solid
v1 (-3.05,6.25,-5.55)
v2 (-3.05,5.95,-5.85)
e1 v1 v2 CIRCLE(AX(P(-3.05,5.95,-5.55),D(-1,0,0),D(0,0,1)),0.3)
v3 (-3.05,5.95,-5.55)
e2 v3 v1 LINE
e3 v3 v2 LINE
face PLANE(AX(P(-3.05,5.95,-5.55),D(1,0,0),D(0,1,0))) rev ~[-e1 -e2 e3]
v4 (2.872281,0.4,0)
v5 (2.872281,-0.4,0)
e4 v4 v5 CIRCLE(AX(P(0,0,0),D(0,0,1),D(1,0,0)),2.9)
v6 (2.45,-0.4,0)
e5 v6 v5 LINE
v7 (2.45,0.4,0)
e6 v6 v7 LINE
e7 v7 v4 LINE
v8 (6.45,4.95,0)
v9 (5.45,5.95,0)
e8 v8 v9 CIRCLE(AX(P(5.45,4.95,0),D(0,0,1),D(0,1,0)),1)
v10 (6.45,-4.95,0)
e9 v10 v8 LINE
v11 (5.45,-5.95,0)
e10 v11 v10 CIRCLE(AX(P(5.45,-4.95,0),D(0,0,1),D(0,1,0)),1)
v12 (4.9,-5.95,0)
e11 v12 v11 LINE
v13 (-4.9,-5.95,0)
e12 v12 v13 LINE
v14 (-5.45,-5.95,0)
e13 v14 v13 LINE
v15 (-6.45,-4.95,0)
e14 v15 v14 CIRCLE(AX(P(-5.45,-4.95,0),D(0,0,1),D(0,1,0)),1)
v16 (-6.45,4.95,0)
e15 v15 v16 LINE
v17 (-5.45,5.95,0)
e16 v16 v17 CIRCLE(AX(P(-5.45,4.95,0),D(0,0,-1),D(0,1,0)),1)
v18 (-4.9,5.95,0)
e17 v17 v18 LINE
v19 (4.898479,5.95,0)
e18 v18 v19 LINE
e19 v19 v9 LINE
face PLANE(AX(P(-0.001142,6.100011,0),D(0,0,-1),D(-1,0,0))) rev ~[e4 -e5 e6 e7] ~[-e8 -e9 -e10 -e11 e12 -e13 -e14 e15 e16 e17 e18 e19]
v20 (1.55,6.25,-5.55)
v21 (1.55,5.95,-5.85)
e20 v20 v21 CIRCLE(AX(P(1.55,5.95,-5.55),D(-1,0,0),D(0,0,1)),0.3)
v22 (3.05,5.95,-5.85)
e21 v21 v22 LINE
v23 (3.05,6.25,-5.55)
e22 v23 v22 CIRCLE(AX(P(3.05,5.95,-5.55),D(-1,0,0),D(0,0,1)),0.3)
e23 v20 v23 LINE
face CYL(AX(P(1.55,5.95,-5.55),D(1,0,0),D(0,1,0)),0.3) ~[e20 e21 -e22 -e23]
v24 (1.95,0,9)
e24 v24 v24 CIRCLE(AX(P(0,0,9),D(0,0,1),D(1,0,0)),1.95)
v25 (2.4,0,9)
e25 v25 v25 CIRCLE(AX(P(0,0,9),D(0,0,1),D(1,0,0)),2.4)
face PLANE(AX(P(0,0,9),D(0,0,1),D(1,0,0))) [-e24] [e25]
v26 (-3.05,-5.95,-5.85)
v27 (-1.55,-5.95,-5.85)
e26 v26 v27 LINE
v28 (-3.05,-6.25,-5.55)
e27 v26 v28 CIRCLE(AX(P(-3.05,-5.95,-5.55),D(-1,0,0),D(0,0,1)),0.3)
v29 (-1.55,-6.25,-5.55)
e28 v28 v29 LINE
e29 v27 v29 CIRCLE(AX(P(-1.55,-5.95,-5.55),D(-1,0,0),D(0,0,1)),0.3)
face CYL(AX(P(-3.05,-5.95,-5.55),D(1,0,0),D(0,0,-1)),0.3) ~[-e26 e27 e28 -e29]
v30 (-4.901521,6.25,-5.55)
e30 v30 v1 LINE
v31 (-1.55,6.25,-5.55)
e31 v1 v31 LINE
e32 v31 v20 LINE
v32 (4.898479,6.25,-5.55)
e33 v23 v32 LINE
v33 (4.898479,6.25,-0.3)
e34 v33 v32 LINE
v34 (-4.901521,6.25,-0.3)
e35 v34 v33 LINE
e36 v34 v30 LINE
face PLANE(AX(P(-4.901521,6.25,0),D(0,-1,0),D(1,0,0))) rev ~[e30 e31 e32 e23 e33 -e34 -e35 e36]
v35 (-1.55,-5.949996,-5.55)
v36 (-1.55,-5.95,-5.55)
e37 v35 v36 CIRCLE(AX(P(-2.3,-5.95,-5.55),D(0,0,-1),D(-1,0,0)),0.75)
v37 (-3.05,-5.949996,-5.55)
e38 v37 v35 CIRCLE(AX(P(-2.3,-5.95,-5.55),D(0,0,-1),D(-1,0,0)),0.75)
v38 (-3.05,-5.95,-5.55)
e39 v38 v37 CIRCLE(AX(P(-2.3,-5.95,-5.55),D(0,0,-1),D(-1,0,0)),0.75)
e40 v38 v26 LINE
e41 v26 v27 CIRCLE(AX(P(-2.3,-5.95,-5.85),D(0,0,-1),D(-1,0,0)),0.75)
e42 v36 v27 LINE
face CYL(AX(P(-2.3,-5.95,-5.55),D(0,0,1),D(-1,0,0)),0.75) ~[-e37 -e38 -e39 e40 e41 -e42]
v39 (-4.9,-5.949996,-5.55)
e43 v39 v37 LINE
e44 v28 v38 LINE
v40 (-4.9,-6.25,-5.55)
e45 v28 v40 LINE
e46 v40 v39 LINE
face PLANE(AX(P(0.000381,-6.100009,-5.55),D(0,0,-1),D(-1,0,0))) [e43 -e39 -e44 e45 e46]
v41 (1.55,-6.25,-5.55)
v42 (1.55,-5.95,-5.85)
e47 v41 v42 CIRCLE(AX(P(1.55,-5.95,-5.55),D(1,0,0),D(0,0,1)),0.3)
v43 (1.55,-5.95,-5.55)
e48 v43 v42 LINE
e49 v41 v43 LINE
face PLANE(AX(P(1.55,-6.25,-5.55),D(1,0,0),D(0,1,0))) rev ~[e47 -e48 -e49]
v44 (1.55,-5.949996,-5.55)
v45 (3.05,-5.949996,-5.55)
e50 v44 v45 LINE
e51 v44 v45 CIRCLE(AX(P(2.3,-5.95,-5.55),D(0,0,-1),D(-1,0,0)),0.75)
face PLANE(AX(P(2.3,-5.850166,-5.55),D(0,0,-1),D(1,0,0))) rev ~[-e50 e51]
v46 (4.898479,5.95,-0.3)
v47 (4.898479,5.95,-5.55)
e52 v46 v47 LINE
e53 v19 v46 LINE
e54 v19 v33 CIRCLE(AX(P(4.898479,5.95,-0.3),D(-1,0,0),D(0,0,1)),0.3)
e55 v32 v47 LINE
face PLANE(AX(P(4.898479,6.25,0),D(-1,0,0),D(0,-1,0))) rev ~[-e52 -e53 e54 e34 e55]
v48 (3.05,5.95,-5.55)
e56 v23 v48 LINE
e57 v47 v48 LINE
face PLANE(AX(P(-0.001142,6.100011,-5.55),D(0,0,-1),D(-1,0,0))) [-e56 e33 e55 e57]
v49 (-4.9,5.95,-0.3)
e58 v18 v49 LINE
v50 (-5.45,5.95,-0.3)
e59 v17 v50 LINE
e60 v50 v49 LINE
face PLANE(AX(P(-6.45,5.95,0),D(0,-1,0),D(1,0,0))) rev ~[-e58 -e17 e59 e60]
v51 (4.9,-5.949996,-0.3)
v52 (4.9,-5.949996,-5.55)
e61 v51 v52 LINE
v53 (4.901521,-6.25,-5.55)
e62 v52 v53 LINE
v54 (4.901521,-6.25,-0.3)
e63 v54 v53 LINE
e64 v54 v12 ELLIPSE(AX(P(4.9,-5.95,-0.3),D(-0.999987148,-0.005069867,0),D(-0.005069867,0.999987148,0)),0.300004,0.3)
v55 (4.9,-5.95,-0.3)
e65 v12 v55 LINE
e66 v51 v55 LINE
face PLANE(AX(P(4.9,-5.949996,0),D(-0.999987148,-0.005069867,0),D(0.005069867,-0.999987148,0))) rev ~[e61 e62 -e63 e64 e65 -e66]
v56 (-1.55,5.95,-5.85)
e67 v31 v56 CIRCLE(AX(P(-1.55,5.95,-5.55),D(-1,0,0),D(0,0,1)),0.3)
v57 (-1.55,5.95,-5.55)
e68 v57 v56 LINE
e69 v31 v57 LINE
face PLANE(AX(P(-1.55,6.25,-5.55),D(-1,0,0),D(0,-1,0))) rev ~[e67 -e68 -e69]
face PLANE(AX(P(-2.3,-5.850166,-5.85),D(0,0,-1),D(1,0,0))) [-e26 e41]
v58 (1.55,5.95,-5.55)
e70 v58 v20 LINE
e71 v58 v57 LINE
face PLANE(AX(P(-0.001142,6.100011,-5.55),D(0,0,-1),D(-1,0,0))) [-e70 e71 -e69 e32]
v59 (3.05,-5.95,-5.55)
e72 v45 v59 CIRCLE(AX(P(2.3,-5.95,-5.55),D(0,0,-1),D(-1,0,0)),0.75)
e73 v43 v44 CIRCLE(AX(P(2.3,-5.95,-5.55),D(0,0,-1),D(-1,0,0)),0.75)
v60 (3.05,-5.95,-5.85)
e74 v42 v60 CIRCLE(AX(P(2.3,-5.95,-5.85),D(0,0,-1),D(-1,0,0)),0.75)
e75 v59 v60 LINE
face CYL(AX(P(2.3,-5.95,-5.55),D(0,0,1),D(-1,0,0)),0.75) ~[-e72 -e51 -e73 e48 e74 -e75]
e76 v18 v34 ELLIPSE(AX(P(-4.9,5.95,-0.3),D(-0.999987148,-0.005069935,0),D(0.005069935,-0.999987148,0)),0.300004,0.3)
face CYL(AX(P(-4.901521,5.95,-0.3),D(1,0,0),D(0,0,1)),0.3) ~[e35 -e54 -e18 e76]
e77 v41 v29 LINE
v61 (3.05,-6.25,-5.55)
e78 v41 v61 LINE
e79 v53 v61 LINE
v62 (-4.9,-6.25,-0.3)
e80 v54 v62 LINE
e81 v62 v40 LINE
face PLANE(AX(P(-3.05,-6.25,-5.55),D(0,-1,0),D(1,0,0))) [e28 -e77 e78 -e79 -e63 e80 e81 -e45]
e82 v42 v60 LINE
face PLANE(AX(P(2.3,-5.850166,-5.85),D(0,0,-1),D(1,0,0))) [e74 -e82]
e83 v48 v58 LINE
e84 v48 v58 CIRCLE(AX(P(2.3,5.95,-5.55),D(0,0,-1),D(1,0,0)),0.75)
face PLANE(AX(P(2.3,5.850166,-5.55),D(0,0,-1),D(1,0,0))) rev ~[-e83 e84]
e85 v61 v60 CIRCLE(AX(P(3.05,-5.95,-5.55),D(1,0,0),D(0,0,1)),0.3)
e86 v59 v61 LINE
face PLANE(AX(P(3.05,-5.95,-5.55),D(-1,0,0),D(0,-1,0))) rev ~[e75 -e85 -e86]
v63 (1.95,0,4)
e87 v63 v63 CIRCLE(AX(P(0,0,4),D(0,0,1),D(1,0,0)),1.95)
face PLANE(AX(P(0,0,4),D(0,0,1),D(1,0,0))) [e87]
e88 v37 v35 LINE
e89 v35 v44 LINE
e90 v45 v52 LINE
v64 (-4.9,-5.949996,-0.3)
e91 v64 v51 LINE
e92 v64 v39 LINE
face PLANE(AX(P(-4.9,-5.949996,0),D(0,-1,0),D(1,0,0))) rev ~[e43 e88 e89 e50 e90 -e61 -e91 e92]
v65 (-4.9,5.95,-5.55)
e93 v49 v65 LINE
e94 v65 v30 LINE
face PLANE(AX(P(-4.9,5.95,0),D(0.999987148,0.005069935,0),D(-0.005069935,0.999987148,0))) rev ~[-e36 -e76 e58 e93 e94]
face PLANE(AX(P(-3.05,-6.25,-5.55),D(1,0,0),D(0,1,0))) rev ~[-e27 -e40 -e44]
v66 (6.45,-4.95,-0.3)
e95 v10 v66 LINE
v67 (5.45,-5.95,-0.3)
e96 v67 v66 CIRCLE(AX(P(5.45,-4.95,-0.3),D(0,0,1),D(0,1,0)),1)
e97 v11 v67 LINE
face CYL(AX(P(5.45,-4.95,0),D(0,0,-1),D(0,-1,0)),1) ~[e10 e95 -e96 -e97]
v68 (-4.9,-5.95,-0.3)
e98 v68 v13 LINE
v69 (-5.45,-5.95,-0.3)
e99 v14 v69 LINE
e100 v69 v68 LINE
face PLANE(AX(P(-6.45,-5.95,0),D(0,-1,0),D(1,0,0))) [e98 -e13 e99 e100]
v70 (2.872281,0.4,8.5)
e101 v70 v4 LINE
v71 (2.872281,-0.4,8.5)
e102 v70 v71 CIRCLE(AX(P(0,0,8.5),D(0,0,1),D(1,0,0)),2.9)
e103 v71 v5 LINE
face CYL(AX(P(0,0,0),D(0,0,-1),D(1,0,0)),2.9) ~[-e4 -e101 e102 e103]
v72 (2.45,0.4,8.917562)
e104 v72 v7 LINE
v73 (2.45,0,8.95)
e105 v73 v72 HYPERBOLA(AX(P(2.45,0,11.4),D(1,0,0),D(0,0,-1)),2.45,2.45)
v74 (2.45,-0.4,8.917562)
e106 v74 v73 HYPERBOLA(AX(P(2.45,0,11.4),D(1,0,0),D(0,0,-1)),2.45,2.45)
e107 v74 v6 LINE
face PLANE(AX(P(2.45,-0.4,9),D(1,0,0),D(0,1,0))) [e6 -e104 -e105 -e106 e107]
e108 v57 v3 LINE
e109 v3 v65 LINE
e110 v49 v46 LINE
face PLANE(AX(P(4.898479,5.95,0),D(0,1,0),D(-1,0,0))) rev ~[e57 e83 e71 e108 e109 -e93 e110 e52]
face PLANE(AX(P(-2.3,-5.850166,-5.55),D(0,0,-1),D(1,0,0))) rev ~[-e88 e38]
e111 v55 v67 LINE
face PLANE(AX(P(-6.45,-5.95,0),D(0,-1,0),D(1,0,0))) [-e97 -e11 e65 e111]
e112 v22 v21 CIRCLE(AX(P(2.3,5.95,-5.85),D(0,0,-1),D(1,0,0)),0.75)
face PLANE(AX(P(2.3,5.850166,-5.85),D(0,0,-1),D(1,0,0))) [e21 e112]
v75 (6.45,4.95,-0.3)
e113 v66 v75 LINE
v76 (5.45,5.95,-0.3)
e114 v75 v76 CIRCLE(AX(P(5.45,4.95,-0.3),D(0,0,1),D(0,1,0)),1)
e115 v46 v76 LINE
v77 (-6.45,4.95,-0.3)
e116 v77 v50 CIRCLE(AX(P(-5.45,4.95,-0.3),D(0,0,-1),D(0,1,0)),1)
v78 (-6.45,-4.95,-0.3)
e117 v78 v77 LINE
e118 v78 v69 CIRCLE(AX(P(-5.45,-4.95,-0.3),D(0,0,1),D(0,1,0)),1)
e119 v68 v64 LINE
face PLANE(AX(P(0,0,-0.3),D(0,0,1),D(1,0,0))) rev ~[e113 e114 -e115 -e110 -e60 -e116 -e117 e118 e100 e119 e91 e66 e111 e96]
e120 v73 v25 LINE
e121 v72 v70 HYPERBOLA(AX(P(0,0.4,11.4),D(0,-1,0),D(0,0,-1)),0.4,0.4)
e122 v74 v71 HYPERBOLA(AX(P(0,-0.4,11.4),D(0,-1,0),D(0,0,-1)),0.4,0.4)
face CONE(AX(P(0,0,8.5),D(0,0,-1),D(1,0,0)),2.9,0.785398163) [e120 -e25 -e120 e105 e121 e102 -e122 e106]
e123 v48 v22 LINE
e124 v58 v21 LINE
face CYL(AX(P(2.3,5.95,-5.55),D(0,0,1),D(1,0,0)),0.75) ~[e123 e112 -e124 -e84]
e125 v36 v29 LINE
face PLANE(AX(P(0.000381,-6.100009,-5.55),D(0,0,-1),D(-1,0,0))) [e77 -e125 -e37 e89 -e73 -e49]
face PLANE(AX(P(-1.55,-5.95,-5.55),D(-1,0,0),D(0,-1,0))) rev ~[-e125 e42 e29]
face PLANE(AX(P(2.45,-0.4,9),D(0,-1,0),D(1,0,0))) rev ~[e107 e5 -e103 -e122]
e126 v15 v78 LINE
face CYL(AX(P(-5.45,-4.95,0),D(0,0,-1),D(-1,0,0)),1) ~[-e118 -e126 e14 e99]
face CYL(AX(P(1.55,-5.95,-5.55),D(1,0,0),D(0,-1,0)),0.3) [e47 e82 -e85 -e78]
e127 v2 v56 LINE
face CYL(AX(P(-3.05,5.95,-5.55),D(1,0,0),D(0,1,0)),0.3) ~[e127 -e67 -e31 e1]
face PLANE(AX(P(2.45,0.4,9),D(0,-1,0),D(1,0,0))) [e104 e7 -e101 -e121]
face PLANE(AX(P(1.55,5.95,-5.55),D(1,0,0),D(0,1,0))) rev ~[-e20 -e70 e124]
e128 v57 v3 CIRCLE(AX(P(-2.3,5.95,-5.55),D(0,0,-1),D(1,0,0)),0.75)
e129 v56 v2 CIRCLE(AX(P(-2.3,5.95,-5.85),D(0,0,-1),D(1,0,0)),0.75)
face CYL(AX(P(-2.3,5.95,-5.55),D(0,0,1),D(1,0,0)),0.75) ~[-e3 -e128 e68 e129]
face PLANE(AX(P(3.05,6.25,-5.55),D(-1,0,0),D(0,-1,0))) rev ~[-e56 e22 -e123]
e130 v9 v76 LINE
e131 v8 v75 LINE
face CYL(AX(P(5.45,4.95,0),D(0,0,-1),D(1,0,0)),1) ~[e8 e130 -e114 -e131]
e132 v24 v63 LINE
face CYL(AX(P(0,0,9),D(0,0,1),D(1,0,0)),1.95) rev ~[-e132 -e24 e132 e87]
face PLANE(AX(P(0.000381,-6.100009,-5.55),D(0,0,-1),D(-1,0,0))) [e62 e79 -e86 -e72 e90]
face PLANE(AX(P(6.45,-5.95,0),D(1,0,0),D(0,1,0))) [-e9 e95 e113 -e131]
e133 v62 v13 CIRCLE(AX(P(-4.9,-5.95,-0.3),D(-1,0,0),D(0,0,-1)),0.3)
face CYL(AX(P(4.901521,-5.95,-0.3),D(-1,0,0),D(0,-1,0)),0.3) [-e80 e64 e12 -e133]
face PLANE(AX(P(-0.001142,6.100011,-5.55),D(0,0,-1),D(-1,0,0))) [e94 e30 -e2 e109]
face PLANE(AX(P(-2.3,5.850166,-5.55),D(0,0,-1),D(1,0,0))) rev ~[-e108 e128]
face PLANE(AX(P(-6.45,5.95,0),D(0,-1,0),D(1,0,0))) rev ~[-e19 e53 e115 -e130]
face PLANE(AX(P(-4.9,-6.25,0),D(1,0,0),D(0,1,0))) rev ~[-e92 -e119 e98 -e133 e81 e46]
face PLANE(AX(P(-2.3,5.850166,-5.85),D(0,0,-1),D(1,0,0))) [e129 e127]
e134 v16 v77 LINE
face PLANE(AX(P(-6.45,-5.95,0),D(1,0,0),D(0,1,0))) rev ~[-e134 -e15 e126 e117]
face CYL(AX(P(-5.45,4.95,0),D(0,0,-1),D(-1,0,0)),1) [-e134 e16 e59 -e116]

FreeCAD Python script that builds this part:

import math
import FreeCAD as App
import Part
import Sketcher

V = App.Vector
Q = App.Units.Quantity


def edges_at(feature, points):
    """Names of the edges that pass closest to the given points."""
    edges = feature.Shape.Edges
    near = lambda p: min(range(len(edges)), key=lambda i: edges[i].distToShape(Part.Vertex(*p))[0])
    return sorted({f"Edge{near(p) + 1}" for p in points})


def add_polygon(sketch, points):
    """Adds a closed chain of lines whose ends are joined by coincident constraints."""
    first, n = sketch.GeometryCount, len(points)
    for a, b in zip(points, points[1:] + points[:1]):
        sketch.addGeometry(Part.LineSegment(App.Vector(*a, 0), App.Vector(*b, 0)), False)
    for i in range(n):
        sketch.addConstraint(Sketcher.Constraint("Coincident", first + i, 2, first + (i + 1) % n, 1))

doc = App.newDocument("Part")
body = doc.addObject("PartDesign::Body", "Body")

# Sketch on XY plane
sketch1 = body.newObject("Sketcher::SketchObject", "Sketch")
sketch1.AttachmentSupport = (doc.getObject("XY_Plane"), [""])
sketch1.MapMode = "FlatFace"
add_polygon(sketch1, [(-6, 6), (-6, -6), (6, -6), (6, 6)])  # lines 0-3
sketch1.addConstraint([
    Sketcher.Constraint("Vertical", 0),
    Sketcher.Constraint("Horizontal", 1),
    Sketcher.Constraint("Vertical", 2),
    Sketcher.Constraint("Horizontal", 3),
    Sketcher.Constraint("Symmetric", 0, 2, 2, 2, -1, 1),
    Sketcher.Constraint("DistanceX", 1, 1, 1, 2, Q("12.9 mm")),
    Sketcher.Constraint("DistanceY", 0, 2, 0, 1, Q("11.9 mm")),
])
pad1 = body.newObject("PartDesign::Pad", "Pad")
pad1.Profile = sketch1
pad1.Length = 0.3
pad1.Reversed = True
doc.recompute()

fillet = body.newObject("PartDesign::Fillet", "Fillet")
fillet.Base = (pad1, edges_at(pad1, [
    (-6.45, -5.95, -0.15),
    (-6.45, 5.95, -0.15),
    (6.45, 5.95, -0.15),
    (6.45, -5.95, -0.15),
]))
fillet.Radius = 1

# Sketch on XY plane
sketch2 = body.newObject("Sketcher::SketchObject", "Sketch001")
sketch2.AttachmentSupport = (doc.getObject("XY_Plane"), [""])
sketch2.MapMode = "FlatFace"
add_polygon(sketch2, [(4.9, 6.25), (-4.9, 6.25), (-4.9, 5.95), (4.9, 5.95)])  # lines 0-3
add_polygon(sketch2, [(-4.9, -6.25), (4.9, -6.25), (4.9, -5.95), (-4.9, -5.95)])  # lines 4-7
sketch2.addConstraint([
    Sketcher.Constraint("Horizontal", 0),
    Sketcher.Constraint("Horizontal", 2),
    Sketcher.Constraint("Vertical", 3),
    Sketcher.Constraint("Horizontal", 4),
    Sketcher.Constraint("Horizontal", 6),
    Sketcher.Constraint("Vertical", 7),
    Sketcher.Constraint("Symmetric", 0, 2, 4, 2, -1, 1),
    Sketcher.Constraint("Symmetric", 1, 2, 5, 2, -1, 1),
    Sketcher.Constraint("Vertical", 1, 2, 6, 2),
    Sketcher.Constraint("Equal", 0, 6),
    Sketcher.Constraint("DistanceX", 0, 2, 0, 1, Q("9.8 mm")),
    Sketcher.Constraint("DistanceY", 3, 1, 3, 2, Q("0.3 mm")),
    Sketcher.Constraint("DistanceY", 4, 2, 2, 2, Q("12.2 mm")),
    Sketcher.Constraint("DistanceX", 2, 1, 2, 2, Q("9.798479 mm")),
])
pad2 = body.newObject("PartDesign::Pad", "Pad001")
pad2.Profile = sketch2
pad2.Length = 5.55
pad2.Reversed = True

# Sketch on XY plane
sketch3 = body.newObject("Sketcher::SketchObject", "Sketch002")
sketch3.AttachmentSupport = (doc.getObject("XY_Plane"), [""])
sketch3.MapMode = "FlatFace"
sketch3.AttachmentOffset = App.Placement(V(0, 0, -5.55), App.Rotation())
sketch3.addGeometry([
    Part.ArcOfCircle(Part.Circle(V(-2.3, -5.95, 0), V(0, 0, 1), 0.75), math.radians(0), math.radians(180)),  # 0
    Part.LineSegment(V(-1.55, -5.95, 0), V(-1.55, -6.25, 0)),  # 1
    Part.LineSegment(V(-1.55, -6.25, 0), V(-3.05, -6.25, 0)),  # 2
    Part.LineSegment(V(-3.05, -6.25, 0), V(-3.05, -5.95, 0)),  # 3
    Part.ArcOfCircle(Part.Circle(V(2.3, -5.95, 0), V(0, 0, 1), 0.75), math.radians(0), math.radians(180)),  # 4
    Part.LineSegment(V(3.05, -5.95, 0), V(3.05, -6.25, 0)),  # 5
    Part.LineSegment(V(3.05, -6.25, 0), V(1.55, -6.25, 0)),  # 6
    Part.LineSegment(V(1.55, -6.25, 0), V(1.55, -5.95, 0)),  # 7
    Part.ArcOfCircle(Part.Circle(V(-2.3, 5.95, 0), V(0, 0, 1), 0.75), math.radians(180), math.radians(360)),  # 8
    Part.LineSegment(V(-3.05, 5.95, 0), V(-3.05, 6.25, 0)),  # 9
    Part.LineSegment(V(-3.05, 6.25, 0), V(-1.55, 6.25, 0)),  # 10
    Part.LineSegment(V(-1.55, 6.25, 0), V(-1.55, 5.95, 0)),  # 11
    Part.ArcOfCircle(Part.Circle(V(2.3, 5.95, 0), V(0, 0, 1), 0.75), math.radians(180), math.radians(360)),  # 12
    Part.LineSegment(V(1.55, 5.95, 0), V(1.55, 6.25, 0)),  # 13
    Part.LineSegment(V(1.55, 6.25, 0), V(3.05, 6.25, 0)),  # 14
    Part.LineSegment(V(3.05, 6.25, 0), V(3.05, 5.95, 0)),  # 15
], False)
sketch3.addConstraint([
    Sketcher.Constraint("Tangent", 0, 1, 1, 1),
    Sketcher.Constraint("Coincident", 1, 2, 2, 1),
    Sketcher.Constraint("Coincident", 2, 2, 3, 1),
    Sketcher.Constraint("Tangent", 3, 2, 0, 2),
    Sketcher.Constraint("Tangent", 4, 1, 5, 1),
    Sketcher.Constraint("Coincident", 5, 2, 6, 1),
    Sketcher.Constraint("Coincident", 6, 2, 7, 1),
    Sketcher.Constraint("Tangent", 7, 2, 4, 2),
    Sketcher.Constraint("Tangent", 8, 1, 9, 1),
    Sketcher.Constraint("Coincident", 9, 2, 10, 1),
    Sketcher.Constraint("Coincident", 10, 2, 11, 1),
    Sketcher.Constraint("Tangent", 11, 2, 8, 2),
    Sketcher.Constraint("Tangent", 12, 1, 13, 1),
    Sketcher.Constraint("Coincident", 13, 2, 14, 1),
    Sketcher.Constraint("Coincident", 14, 2, 15, 1),
    Sketcher.Constraint("Tangent", 15, 2, 12, 2),
    Sketcher.Constraint("Vertical", 1),
    Sketcher.Constraint("Horizontal", 2),
    Sketcher.Constraint("Vertical", 3),
    Sketcher.Constraint("Vertical", 5),
    Sketcher.Constraint("Horizontal", 6),
    Sketcher.Constraint("Vertical", 7),
    Sketcher.Constraint("Vertical", 9),
    Sketcher.Constraint("Horizontal", 10),
    Sketcher.Constraint("Vertical", 11),
    Sketcher.Constraint("Vertical", 13),
    Sketcher.Constraint("Horizontal", 14),
    Sketcher.Constraint("Vertical", 15),
    Sketcher.Constraint("Equal", 0, 4),
    Sketcher.Constraint("Equal", 4, 8),
    Sketcher.Constraint("Equal", 8, 12),
    Sketcher.Constraint("Symmetric", 4, 3, 8, 3, -1, 1),
    Sketcher.Constraint("Symmetric", 0, 3, 12, 3, -1, 1),
    Sketcher.Constraint("Symmetric", 0, 3, 4, 3, -2),
    Sketcher.Constraint("Horizontal", 2, 2, 5, 2),
    Sketcher.Constraint("Horizontal", 10, 2, 13, 2),
    Sketcher.Constraint("Equal", 7, 9),
    Sketcher.Constraint("Radius", 0, Q("0.75 mm")),
    Sketcher.Constraint("DistanceY", 1, 2, 1, 1, Q("0.3 mm")),
    Sketcher.Constraint("DistanceX", 0, 3, -1, 1, Q("2.3 mm")),
    Sketcher.Constraint("DistanceY", 0, 3, 8, 3, Q("11.9 mm")),
])
pad3 = body.newObject("PartDesign::Pad", "Pad002")
pad3.Profile = sketch3
pad3.Length = 0.3
pad3.Reversed = True
doc.recompute()

fillet2 = body.newObject("PartDesign::Fillet", "Fillet001")
fillet2.Base = (pad3, edges_at(pad3, [
    (2.3, -6.25, -5.85),
    (-2.3, -6.25, -5.85),
    (2.3, 6.25, -5.85),
    (-2.3, 6.25, -5.85),
    (-0.002, 6.25, 0),
    (0.001, -6.25, 0),
]))
fillet2.Radius = 0.3

# Sketch on XY plane
sketch4 = body.newObject("Sketcher::SketchObject", "Sketch003")
sketch4.AttachmentSupport = (doc.getObject("XY_Plane"), [""])
sketch4.MapMode = "FlatFace"
sketch4.addGeometry(Part.Circle(V(0, 0, 0), V(0, 0, 1), 2.9), False)
sketch4.addConstraint([
    Sketcher.Constraint("Coincident", 0, 3, -1, 1),
    Sketcher.Constraint("Diameter", 0, Q("5.8 mm")),
])
pad4 = body.newObject("PartDesign::Pad", "Pad003")
pad4.Profile = sketch4
pad4.Length = 9

# Sketch on XY plane
sketch5 = body.newObject("Sketcher::SketchObject", "Sketch004")
sketch5.AttachmentSupport = (doc.getObject("XY_Plane"), [""])
sketch5.MapMode = "FlatFace"
sketch5.AttachmentOffset = App.Placement(V(0, 0, 9), App.Rotation())
sketch5.addGeometry(Part.Circle(V(0, 0, 0), V(0, 0, 1), 1.9), False)
sketch5.addConstraint([
    Sketcher.Constraint("Coincident", 0, 3, -1, 1),
    Sketcher.Constraint("Diameter", 0, Q("3.9 mm")),
])
pocket1 = body.newObject("PartDesign::Pocket", "Pocket")
pocket1.Profile = sketch5
pocket1.Length = 5
doc.recompute()

chamfer = body.newObject("PartDesign::Chamfer", "Chamfer")
chamfer.Base = (pocket1, edges_at(pocket1, [(-2.9, 0, 9)]))
chamfer.Size = 0.5

# Sketch on XY plane
sketch6 = body.newObject("Sketcher::SketchObject", "Sketch005")
sketch6.AttachmentSupport = (doc.getObject("XY_Plane"), [""])
sketch6.MapMode = "FlatFace"
sketch6.AttachmentOffset = App.Placement(V(0, 0, 9), App.Rotation())
add_polygon(sketch6, [(2.5, 0.4), (2.5, -0.4), (3, -0.4), (3, 0.4)])  # lines 0-3
sketch6.addConstraint([
    Sketcher.Constraint("Vertical", 0),
    Sketcher.Constraint("Horizontal", 1),
    Sketcher.Constraint("Vertical", 2),
    Sketcher.Constraint("Horizontal", 3),
    Sketcher.Constraint("DistanceX", 1, 1, 1, 2, Q("0.5 mm")),
    Sketcher.Constraint("DistanceY", 0, 2, 0, 1, Q("0.8 mm")),
    Sketcher.Constraint("DistanceY", 0, 2, -1, 1, Q("0.4 mm")),
    Sketcher.Constraint("DistanceX", -1, 1, 0, 2, Q("2.45 mm")),
])
pocket2 = body.newObject("PartDesign::Pocket", "Pocket001")
pocket2.Profile = sketch6
pocket2.Length = 9

doc.recompute()
